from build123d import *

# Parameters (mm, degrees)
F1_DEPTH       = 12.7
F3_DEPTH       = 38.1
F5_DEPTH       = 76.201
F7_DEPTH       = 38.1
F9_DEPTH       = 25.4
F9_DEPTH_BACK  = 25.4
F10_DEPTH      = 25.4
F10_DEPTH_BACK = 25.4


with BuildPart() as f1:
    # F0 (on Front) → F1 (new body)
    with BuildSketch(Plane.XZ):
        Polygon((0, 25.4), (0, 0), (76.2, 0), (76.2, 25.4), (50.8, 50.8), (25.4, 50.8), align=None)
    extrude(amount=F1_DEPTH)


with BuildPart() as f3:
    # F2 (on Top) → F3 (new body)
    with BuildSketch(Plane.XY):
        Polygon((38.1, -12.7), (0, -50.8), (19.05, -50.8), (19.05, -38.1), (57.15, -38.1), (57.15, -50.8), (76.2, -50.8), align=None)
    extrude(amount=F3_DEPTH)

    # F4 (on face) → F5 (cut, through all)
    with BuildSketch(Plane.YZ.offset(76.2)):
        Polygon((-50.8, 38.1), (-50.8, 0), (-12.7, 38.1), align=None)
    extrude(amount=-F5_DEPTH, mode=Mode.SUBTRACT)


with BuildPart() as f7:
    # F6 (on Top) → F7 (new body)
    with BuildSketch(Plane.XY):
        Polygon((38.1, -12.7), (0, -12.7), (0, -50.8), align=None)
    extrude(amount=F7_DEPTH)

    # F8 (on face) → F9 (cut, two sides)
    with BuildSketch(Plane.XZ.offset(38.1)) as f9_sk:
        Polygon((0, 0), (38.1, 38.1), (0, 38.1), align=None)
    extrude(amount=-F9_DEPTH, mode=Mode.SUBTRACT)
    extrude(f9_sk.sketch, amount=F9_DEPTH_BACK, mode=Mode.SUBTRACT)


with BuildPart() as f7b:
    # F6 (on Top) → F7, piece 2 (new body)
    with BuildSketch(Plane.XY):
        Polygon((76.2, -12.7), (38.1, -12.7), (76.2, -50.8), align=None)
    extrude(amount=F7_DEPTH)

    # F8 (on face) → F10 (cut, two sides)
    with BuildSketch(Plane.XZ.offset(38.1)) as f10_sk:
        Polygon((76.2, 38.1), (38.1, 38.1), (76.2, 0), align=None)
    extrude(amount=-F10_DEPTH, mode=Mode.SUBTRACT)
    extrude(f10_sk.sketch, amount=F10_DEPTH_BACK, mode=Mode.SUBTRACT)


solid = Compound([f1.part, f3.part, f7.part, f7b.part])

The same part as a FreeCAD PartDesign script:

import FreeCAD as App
import Part
import Sketcher

V = App.Vector
Q = App.Units.Quantity


def add_polygon(sketch, points):
    """Adds a closed chain of lines whose ends are joined by coincident constraints."""
    first, n = sketch.GeometryCount, len(points)
    for a, b in zip(points, points[1:] + points[:1]):
        sketch.addGeometry(Part.LineSegment(App.Vector(*a, 0), App.Vector(*b, 0)), False)
    for i in range(n):
        sketch.addConstraint(Sketcher.Constraint("Coincident", first + i, 2, first + (i + 1) % n, 1))

doc = App.newDocument("Part")
body = doc.addObject("PartDesign::Body", "Body")

# Sketch on XZ plane
sketch1 = body.newObject("Sketcher::SketchObject", "Sketch")
sketch1.AttachmentSupport = (doc.getObject("XZ_Plane"), [""])
sketch1.MapMode = "FlatFace"
add_polygon(sketch1, [(0, 25), (0, 0), (76, 0), (76, 25), (51, 51), (25, 51)])  # lines 0-5
sketch1.addConstraint([
    Sketcher.Constraint("Vertical", 0),
    Sketcher.Constraint("Horizontal", 1),
    Sketcher.Constraint("Vertical", 2),
    Sketcher.Constraint("Horizontal", 4),
    Sketcher.Constraint("Coincident", 0, 2, -1, 1),
    Sketcher.Constraint("Perpendicular", 3, 5),
    Sketcher.Constraint("Horizontal", 2, 2, 5, 2),
    Sketcher.Constraint("Equal", 4, 0),
    Sketcher.Constraint("Equal", 3, 5),
    Sketcher.Constraint("DistanceX", 1, 1, 1, 2, Q("3 in")),
    Sketcher.Constraint("DistanceX", 4, 2, 4, 1, Q("1 in")),
])
pad1 = body.newObject("PartDesign::Pad", "Pad")
pad1.Profile = sketch1
pad1.Length = Q("0.5 in")
body2 = doc.addObject("PartDesign::Body", "Body001")

# Sketch on XY plane
sketch2 = body2.newObject("Sketcher::SketchObject", "Sketch001")
sketch2.AttachmentSupport = (doc.getObject("XY_Plane001"), [""])
sketch2.MapMode = "FlatFace"
add_polygon(sketch2, [(38, -13), (0, -51), (19, -51), (19, -38), (57, -38), (57, -51), (76, -51)])  # lines 0-6
sketch2.addConstraint([
    Sketcher.Constraint("Horizontal", 1),
    Sketcher.Constraint("Vertical", 2),
    Sketcher.Constraint("Horizontal", 3),
    Sketcher.Constraint("Vertical", 4),
    Sketcher.Constraint("Horizontal", 5),
    Sketcher.Constraint("PointOnObject", 0, 2, -2),
    Sketcher.Constraint("Perpendicular", 0, 6),
    Sketcher.Constraint("Horizontal", 1, 2, 4, 2),
    Sketcher.Constraint("Equal", 1, 5),
    Sketcher.Constraint("Equal", 0, 6),
    Sketcher.Constraint("DistanceX", 3, 1, 3, 2, Q("1.5 in")),
    Sketcher.Constraint("DistanceY", 2, 1, 2, 2, Q("0.5 in")),
    Sketcher.Constraint("DistanceY", 0, 2, -1, 1, Q("2 in")),
    Sketcher.Constraint("DistanceX", -1, 1, 5, 2, Q("3 in")),
])
pad2 = body2.newObject("PartDesign::Pad", "Pad001")
pad2.Profile = sketch2
pad2.Length = Q("1.5 in")

# Sketch on YZ plane
sketch3 = body2.newObject("Sketcher::SketchObject", "Sketch002")
sketch3.AttachmentSupport = (doc.getObject("YZ_Plane001"), [""])
sketch3.MapMode = "FlatFace"
sketch3.AttachmentOffset = App.Placement(V(0, 0, 3 * 25.4), App.Rotation())
add_polygon(sketch3, [(-51, 38), (-51, 0), (-13, 38)])  # lines 0-2
sketch3.addConstraint([
    Sketcher.Constraint("Vertical", 0),
    Sketcher.Constraint("Horizontal", 2),
    Sketcher.Constraint("PointOnObject", 0, 2, -1),
    Sketcher.Constraint("Equal", 2, 0),
    Sketcher.Constraint("DistanceX", 2, 2, 2, 1, Q("1.5 in")),
    Sketcher.Constraint("DistanceX", 0, 2, -1, 1, Q("2 in")),
])
pocket1 = body2.newObject("PartDesign::Pocket", "Pocket")
pocket1.Profile = sketch3
pocket1.Type = "ThroughAll"
body3 = doc.addObject("PartDesign::Body", "Body002")

# Sketch on XY plane
sketch4 = body3.newObject("Sketcher::SketchObject", "Sketch003")
sketch4.AttachmentSupport = (doc.getObject("XY_Plane002"), [""])
sketch4.MapMode = "FlatFace"
add_polygon(sketch4, [(38, -13), (0, -13), (0, -51)])  # lines 0-2
sketch4.addConstraint([
    Sketcher.Constraint("Horizontal", 0),
    Sketcher.Constraint("Vertical", 1),
    Sketcher.Constraint("PointOnObject", 0, 2, -2),
    Sketcher.Constraint("Equal", 0, 1),
    Sketcher.Constraint("DistanceX", 0, 2, 0, 1, Q("1.5 in")),
    Sketcher.Constraint("DistanceY", 1, 2, -1, 1, Q("2 in")),
])
pad3 = body3.newObject("PartDesign::Pad", "Pad002")
pad3.Profile = sketch4
pad3.Length = Q("1.5 in")

# Sketch on XZ plane
sketch5 = body3.newObject("Sketcher::SketchObject", "Sketch004")
sketch5.AttachmentSupport = (doc.getObject("XZ_Plane002"), [""])
sketch5.MapMode = "FlatFace"
sketch5.AttachmentOffset = App.Placement(V(0, 0, 1.5 * 25.4), App.Rotation())
add_polygon(sketch5, [(0, 0), (38, 38), (0, 38)])  # lines 0-2
sketch5.addConstraint([
    Sketcher.Constraint("Horizontal", 1),
    Sketcher.Constraint("Vertical", 2),
    Sketcher.Constraint("Coincident", 2, 2, -1, 1),
    Sketcher.Constraint("Equal", 1, 2),
    Sketcher.Constraint("DistanceX", 1, 2, 1, 1, Q("1.5 in")),
])
pocket2 = body3.newObject("PartDesign::Pocket", "Pocket001")
pocket2.Profile = sketch5
pocket2.Type = "ThroughAll"
pocket2.Midplane = True
body4 = doc.addObject("PartDesign::Body", "Body003")

# Sketch on XY plane
sketch6 = body4.newObject("Sketcher::SketchObject", "Sketch005")
sketch6.AttachmentSupport = (doc.getObject("XY_Plane003"), [""])
sketch6.MapMode = "FlatFace"
add_polygon(sketch6, [(76, -13), (38, -13), (76, -51)])  # lines 0-2
sketch6.addConstraint([
    Sketcher.Constraint("Horizontal", 0),
    Sketcher.Constraint("Vertical", 2),
    Sketcher.Constraint("Equal", 0, 2),
    Sketcher.Constraint("DistanceX", 0, 2, 0, 1, Q("1.5 in")),
    Sketcher.Constraint("DistanceX", -1, 1, 1, 2, Q("3 in")),
    Sketcher.Constraint("DistanceY", 1, 2, -1, 1, Q("2 in")),
])
pad4 = body4.newObject("PartDesign::Pad", "Pad003")
pad4.Profile = sketch6
pad4.Length = Q("1.5 in")

# Sketch on XZ plane
sketch7 = body4.newObject("Sketcher::SketchObject", "Sketch006")
sketch7.AttachmentSupport = (doc.getObject("XZ_Plane003"), [""])
sketch7.MapMode = "FlatFace"
sketch7.AttachmentOffset = App.Placement(V(0, 0, 1.5 * 25.4), App.Rotation())
add_polygon(sketch7, [(76, 38), (38, 38), (76, 0)])  # lines 0-2
sketch7.addConstraint([
    Sketcher.Constraint("Horizontal", 0),
    Sketcher.Constraint("Vertical", 2),
    Sketcher.Constraint("PointOnObject", 1, 2, -1),
    Sketcher.Constraint("Equal", 0, 2),
    Sketcher.Constraint("DistanceX", 0, 2, 0, 1, Q("1.5 in")),
    Sketcher.Constraint("DistanceX", -1, 1, 1, 2, Q("3 in")),
])
pocket3 = body4.newObject("PartDesign::Pocket", "Pocket002")
pocket3.Profile = sketch7
pocket3.Type = "ThroughAll"
pocket3.Midplane = True

doc.recompute()
